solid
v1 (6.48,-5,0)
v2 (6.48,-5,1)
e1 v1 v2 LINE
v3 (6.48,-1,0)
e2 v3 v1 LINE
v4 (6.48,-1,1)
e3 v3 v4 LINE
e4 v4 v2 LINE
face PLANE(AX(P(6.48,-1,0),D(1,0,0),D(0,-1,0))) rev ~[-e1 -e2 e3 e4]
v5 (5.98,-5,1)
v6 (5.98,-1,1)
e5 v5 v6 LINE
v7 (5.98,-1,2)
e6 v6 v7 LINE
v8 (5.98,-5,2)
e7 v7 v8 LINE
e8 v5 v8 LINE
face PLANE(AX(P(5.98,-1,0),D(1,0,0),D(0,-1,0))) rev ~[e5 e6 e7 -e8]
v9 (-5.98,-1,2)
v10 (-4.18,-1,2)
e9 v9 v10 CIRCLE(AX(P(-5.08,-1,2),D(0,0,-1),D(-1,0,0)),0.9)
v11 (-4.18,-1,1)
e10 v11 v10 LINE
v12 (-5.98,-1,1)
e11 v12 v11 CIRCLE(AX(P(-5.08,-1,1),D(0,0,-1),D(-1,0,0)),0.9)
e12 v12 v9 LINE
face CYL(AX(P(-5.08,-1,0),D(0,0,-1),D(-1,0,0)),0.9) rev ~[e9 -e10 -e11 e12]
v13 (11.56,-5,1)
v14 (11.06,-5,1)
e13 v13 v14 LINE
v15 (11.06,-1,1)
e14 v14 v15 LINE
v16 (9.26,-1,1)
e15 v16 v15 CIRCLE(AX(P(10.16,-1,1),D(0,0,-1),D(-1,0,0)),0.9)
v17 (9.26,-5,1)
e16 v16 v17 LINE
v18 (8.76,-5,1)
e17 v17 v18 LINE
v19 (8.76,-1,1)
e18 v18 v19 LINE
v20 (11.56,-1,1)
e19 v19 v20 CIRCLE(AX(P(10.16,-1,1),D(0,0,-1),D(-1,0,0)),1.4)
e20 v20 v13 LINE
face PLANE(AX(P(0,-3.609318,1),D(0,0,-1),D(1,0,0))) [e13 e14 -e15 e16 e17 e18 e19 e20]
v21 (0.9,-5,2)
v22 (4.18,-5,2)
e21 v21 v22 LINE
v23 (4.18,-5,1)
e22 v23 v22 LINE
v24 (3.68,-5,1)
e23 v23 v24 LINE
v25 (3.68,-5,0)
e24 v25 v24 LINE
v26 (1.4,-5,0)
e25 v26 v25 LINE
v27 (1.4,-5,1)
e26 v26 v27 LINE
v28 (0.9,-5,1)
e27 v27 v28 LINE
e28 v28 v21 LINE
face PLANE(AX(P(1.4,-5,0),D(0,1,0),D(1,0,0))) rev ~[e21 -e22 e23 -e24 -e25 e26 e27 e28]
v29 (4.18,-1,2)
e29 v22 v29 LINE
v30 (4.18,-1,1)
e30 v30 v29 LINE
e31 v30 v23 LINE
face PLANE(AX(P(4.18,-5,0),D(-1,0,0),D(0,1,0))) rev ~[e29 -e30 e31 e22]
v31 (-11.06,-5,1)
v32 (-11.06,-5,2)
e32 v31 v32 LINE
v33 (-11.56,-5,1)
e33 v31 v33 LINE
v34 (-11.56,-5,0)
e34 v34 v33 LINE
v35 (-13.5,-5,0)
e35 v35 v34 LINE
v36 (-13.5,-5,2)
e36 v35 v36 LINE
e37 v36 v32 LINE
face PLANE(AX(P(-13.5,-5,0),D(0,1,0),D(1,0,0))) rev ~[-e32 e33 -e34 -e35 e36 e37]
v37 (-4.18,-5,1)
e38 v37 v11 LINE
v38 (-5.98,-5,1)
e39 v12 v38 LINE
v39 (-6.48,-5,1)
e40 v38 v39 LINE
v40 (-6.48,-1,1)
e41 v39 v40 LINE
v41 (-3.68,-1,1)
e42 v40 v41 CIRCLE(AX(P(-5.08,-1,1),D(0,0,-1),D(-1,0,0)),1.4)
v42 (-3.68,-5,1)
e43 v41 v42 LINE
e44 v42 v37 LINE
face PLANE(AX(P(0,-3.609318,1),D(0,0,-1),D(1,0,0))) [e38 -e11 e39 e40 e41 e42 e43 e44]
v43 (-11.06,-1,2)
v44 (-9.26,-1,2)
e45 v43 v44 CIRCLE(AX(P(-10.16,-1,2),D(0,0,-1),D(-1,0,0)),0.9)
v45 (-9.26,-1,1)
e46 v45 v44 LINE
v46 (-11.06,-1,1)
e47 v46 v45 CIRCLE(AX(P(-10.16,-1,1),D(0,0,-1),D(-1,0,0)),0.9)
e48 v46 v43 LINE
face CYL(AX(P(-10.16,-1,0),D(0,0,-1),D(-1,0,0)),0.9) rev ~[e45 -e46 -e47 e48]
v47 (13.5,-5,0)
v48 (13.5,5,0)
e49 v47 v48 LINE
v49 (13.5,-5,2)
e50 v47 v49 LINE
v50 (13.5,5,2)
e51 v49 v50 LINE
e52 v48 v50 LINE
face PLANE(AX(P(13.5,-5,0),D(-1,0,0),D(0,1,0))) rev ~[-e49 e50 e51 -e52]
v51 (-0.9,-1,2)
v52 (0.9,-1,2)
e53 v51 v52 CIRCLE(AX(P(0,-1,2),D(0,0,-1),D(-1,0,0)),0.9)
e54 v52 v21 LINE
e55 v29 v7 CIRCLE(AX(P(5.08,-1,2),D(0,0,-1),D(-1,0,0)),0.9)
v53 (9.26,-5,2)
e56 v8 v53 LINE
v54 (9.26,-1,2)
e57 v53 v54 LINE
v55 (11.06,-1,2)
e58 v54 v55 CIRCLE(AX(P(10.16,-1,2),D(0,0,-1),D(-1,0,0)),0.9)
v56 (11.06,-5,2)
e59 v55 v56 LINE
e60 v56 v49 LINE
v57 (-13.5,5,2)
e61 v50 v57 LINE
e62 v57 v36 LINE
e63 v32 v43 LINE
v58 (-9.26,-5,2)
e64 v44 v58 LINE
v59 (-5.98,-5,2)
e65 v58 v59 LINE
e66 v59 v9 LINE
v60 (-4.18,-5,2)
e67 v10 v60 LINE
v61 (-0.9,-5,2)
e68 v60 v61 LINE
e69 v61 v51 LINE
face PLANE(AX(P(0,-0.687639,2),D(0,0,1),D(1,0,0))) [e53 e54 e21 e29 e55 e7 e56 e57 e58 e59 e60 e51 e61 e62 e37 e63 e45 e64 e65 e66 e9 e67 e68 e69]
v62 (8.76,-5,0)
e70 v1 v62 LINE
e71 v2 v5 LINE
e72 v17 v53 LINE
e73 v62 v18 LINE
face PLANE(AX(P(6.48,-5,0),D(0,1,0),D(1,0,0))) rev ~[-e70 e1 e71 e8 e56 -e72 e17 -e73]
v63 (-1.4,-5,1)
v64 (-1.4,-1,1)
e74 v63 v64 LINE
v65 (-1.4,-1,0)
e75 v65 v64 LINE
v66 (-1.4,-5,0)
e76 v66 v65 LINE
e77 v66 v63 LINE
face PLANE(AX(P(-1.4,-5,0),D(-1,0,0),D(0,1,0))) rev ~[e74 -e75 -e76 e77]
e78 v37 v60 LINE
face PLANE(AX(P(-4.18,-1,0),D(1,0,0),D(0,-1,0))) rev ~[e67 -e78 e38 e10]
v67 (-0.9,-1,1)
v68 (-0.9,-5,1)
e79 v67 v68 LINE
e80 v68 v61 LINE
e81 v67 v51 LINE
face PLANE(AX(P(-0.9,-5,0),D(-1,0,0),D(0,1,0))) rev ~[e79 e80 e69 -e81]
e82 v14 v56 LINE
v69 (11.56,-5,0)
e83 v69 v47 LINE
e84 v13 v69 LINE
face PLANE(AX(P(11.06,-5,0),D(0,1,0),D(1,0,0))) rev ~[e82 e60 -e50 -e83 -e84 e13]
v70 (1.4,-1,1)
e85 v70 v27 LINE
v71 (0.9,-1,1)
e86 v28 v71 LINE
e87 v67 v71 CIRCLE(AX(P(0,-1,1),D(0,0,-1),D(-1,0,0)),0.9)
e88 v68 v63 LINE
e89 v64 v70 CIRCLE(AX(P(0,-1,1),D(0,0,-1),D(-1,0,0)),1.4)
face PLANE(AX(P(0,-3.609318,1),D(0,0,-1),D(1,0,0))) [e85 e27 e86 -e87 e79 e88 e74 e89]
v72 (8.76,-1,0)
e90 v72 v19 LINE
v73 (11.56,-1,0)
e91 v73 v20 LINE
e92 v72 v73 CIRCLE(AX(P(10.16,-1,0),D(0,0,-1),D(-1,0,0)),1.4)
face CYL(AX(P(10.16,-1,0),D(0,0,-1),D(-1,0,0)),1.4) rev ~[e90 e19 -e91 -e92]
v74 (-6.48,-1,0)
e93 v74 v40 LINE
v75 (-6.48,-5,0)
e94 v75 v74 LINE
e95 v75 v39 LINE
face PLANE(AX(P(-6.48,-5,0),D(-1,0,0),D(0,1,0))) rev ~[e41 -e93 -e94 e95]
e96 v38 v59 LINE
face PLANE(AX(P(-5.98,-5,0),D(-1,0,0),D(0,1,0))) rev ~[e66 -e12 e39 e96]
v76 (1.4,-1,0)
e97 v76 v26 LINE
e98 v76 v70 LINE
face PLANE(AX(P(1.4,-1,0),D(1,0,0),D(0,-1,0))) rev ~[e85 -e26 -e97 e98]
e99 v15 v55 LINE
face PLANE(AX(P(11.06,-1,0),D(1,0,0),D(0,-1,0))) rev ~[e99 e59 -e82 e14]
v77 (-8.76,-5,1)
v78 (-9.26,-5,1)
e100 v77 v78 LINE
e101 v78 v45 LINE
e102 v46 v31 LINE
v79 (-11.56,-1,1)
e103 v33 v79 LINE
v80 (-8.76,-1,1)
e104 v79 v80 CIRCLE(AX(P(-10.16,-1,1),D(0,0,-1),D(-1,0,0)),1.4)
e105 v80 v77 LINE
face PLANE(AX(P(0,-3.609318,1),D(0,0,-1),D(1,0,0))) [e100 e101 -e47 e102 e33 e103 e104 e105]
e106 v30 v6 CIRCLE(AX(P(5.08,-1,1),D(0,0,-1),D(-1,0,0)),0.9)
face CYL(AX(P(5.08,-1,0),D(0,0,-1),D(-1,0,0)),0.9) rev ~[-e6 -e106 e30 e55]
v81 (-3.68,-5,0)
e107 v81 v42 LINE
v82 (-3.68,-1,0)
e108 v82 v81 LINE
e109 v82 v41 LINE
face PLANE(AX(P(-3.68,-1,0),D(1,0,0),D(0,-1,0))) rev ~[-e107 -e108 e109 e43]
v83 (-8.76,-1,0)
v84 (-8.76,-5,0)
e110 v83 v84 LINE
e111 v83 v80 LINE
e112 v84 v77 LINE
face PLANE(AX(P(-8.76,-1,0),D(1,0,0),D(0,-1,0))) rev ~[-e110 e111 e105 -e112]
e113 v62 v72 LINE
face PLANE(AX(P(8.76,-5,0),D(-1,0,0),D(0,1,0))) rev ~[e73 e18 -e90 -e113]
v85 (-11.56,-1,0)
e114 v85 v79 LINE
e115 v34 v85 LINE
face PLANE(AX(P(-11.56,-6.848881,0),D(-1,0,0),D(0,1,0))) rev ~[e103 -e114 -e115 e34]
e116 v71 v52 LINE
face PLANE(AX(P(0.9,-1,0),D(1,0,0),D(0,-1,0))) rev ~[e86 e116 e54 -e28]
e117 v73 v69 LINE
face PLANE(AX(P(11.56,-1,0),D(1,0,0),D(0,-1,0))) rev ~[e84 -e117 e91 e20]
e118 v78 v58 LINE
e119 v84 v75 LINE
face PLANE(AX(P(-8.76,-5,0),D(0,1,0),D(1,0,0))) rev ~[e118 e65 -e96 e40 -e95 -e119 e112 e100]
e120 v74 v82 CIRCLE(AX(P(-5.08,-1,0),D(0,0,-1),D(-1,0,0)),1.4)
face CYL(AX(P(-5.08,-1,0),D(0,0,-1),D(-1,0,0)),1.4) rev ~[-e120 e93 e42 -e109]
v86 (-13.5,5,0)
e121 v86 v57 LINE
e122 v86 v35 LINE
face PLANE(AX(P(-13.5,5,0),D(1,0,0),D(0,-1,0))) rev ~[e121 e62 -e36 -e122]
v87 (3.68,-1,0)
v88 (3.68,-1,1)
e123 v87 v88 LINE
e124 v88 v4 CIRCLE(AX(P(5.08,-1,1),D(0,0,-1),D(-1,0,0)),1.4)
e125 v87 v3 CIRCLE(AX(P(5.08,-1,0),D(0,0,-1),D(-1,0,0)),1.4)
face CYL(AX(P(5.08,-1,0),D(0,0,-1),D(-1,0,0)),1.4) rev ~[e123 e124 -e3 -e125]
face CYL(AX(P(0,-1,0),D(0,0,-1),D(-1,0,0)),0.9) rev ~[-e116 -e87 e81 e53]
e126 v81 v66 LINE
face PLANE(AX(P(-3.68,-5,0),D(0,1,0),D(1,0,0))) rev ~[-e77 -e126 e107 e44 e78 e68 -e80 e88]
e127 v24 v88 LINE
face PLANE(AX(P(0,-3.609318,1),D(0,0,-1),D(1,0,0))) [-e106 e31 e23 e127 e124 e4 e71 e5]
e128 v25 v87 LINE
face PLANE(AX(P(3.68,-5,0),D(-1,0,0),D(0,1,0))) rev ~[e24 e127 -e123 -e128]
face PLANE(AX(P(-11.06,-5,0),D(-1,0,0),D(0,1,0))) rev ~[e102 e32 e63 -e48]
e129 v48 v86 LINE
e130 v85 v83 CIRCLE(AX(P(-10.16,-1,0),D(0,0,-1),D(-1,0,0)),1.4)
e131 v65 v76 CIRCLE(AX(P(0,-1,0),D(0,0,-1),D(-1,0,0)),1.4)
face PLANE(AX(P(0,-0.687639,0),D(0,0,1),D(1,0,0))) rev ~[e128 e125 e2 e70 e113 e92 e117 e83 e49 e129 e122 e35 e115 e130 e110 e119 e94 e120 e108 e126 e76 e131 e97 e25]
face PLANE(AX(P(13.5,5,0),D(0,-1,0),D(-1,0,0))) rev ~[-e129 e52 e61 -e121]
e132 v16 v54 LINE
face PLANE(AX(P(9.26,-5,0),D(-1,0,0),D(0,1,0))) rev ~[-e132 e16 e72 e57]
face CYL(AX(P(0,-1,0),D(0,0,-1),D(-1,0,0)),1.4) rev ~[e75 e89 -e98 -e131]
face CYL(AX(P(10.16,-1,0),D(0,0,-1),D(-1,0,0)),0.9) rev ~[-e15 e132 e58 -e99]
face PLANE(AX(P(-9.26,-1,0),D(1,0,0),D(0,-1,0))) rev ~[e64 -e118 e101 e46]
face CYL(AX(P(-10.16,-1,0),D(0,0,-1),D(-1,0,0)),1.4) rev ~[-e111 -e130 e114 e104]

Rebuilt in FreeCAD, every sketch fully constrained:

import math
import FreeCAD as App
import Part
import Sketcher

doc = App.newDocument("Part")
body = doc.addObject("PartDesign::Body", "Body")

sketch1 = body.newObject("Sketcher::SketchObject", "Sketch")
sketch1.AttachmentSupport = (doc.getObject("XY_Plane"), [""])
sketch1.MapMode = "FlatFace"
sketch1.addGeometry(Part.LineSegment(App.Vector(13.5, 5, 0), App.Vector(-13.5, 5, 0)), False)
sketch1.addGeometry(Part.LineSegment(App.Vector(-13.5, 5, 0), App.Vector(-13.5, -5, 0)), False)
sketch1.addGeometry(Part.LineSegment(App.Vector(-13.5, -5, 0), App.Vector(-11.1, -5, 0)), False)
sketch1.addGeometry(Part.LineSegment(App.Vector(-11.1, -5, 0), App.Vector(-11.1, -1, 0)), False)
sketch1.addGeometry(Part.ArcOfCircle(Part.Circle(App.Vector(-10.2, -1, 0), App.Vector(0, 0, 1), 0.9), math.radians(0), math.radians(180)), False)
sketch1.addGeometry(Part.LineSegment(App.Vector(-9.3, -1, 0), App.Vector(-9.3, -5, 0)), False)
sketch1.addGeometry(Part.LineSegment(App.Vector(-9.3, -5, 0), App.Vector(-6, -5, 0)), False)
sketch1.addGeometry(Part.LineSegment(App.Vector(-6, -5, 0), App.Vector(-6, -1, 0)), False)
sketch1.addGeometry(Part.ArcOfCircle(Part.Circle(App.Vector(-5.1, -1, 0), App.Vector(0, 0, 1), 0.9), math.radians(0), math.radians(180)), False)
sketch1.addGeometry(Part.LineSegment(App.Vector(-4.2, -1, 0), App.Vector(-4.2, -5, 0)), False)
sketch1.addGeometry(Part.LineSegment(App.Vector(-4.2, -5, 0), App.Vector(-0.9, -5, 0)), False)
sketch1.addGeometry(Part.LineSegment(App.Vector(-0.9, -5, 0), App.Vector(-0.9, -1, 0)), False)
sketch1.addGeometry(Part.ArcOfCircle(Part.Circle(App.Vector(0, -1, 0), App.Vector(0, 0, 1), 0.9), math.radians(0), math.radians(180)), False)
sketch1.addGeometry(Part.LineSegment(App.Vector(0.9, -1, 0), App.Vector(0.9, -5, 0)), False)
sketch1.addGeometry(Part.LineSegment(App.Vector(0.9, -5, 0), App.Vector(4.2, -5, 0)), False)
sketch1.addGeometry(Part.LineSegment(App.Vector(4.2, -5, 0), App.Vector(4.2, -1, 0)), False)
sketch1.addGeometry(Part.ArcOfCircle(Part.Circle(App.Vector(5.1, -1, 0), App.Vector(0, 0, 1), 0.9), math.radians(0), math.radians(180)), False)
sketch1.addGeometry(Part.LineSegment(App.Vector(6, -1, 0), App.Vector(6, -5, 0)), False)
sketch1.addGeometry(Part.LineSegment(App.Vector(6, -5, 0), App.Vector(9.3, -5, 0)), False)
sketch1.addGeometry(Part.LineSegment(App.Vector(9.3, -5, 0), App.Vector(9.3, -1, 0)), False)
sketch1.addGeometry(Part.ArcOfCircle(Part.Circle(App.Vector(10.2, -1, 0), App.Vector(0, 0, 1), 0.9), math.radians(0), math.radians(180)), False)
sketch1.addGeometry(Part.LineSegment(App.Vector(11.1, -1, 0), App.Vector(11.1, -5, 0)), False)
sketch1.addGeometry(Part.LineSegment(App.Vector(11.1, -5, 0), App.Vector(13.5, -5, 0)), False)
sketch1.addGeometry(Part.LineSegment(App.Vector(13.5, -5, 0), App.Vector(13.5, 5, 0)), False)
sketch1.addConstraint(Sketcher.Constraint("Coincident", 0, 2, 1, 1))
sketch1.addConstraint(Sketcher.Constraint("Coincident", 1, 2, 2, 1))
sketch1.addConstraint(Sketcher.Constraint("Coincident", 2, 2, 3, 1))
sketch1.addConstraint(Sketcher.Constraint("Tangent", 3, 2, 4, 2))
sketch1.addConstraint(Sketcher.Constraint("Tangent", 4, 1, 5, 1))
sketch1.addConstraint(Sketcher.Constraint("Coincident", 5, 2, 6, 1))
sketch1.addConstraint(Sketcher.Constraint("Coincident", 6, 2, 7, 1))
sketch1.addConstraint(Sketcher.Constraint("Tangent", 7, 2, 8, 2))
sketch1.addConstraint(Sketcher.Constraint("Tangent", 8, 1, 9, 1))
sketch1.addConstraint(Sketcher.Constraint("Coincident", 9, 2, 10, 1))
sketch1.addConstraint(Sketcher.Constraint("Coincident", 10, 2, 11, 1))
sketch1.addConstraint(Sketcher.Constraint("Tangent", 11, 2, 12, 2))
sketch1.addConstraint(Sketcher.Constraint("Tangent", 12, 1, 13, 1))
sketch1.addConstraint(Sketcher.Constraint("Coincident", 13, 2, 14, 1))
sketch1.addConstraint(Sketcher.Constraint("Coincident", 14, 2, 15, 1))
sketch1.addConstraint(Sketcher.Constraint("Tangent", 15, 2, 16, 2))
sketch1.addConstraint(Sketcher.Constraint("Tangent", 16, 1, 17, 1))
sketch1.addConstraint(Sketcher.Constraint("Coincident", 17, 2, 18, 1))
sketch1.addConstraint(Sketcher.Constraint("Coincident", 18, 2, 19, 1))
sketch1.addConstraint(Sketcher.Constraint("Tangent", 19, 2, 20, 2))
sketch1.addConstraint(Sketcher.Constraint("Tangent", 20, 1, 21, 1))
sketch1.addConstraint(Sketcher.Constraint("Coincident", 21, 2, 22, 1))
sketch1.addConstraint(Sketcher.Constraint("Coincident", 22, 2, 23, 1))
sketch1.addConstraint(Sketcher.Constraint("Coincident", 23, 2, 0, 1))
sketch1.addConstraint(Sketcher.Constraint("Horizontal", 0))
sketch1.addConstraint(Sketcher.Constraint("Vertical", 1))
sketch1.addConstraint(Sketcher.Constraint("Horizontal", 2))
sketch1.addConstraint(Sketcher.Constraint("Vertical", 3))
sketch1.addConstraint(Sketcher.Constraint("Vertical", 5))
sketch1.addConstraint(Sketcher.Constraint("Horizontal", 6))
sketch1.addConstraint(Sketcher.Constraint("Vertical", 7))
sketch1.addConstraint(Sketcher.Constraint("Vertical", 9))
sketch1.addConstraint(Sketcher.Constraint("Horizontal", 10))
sketch1.addConstraint(Sketcher.Constraint("Vertical", 11))
sketch1.addConstraint(Sketcher.Constraint("Vertical", 13))
sketch1.addConstraint(Sketcher.Constraint("Horizontal", 14))
sketch1.addConstraint(Sketcher.Constraint("Vertical", 15))
sketch1.addConstraint(Sketcher.Constraint("Vertical", 17))
sketch1.addConstraint(Sketcher.Constraint("Horizontal", 18))
sketch1.addConstraint(Sketcher.Constraint("Vertical", 19))
sketch1.addConstraint(Sketcher.Constraint("Vertical", 21))
sketch1.addConstraint(Sketcher.Constraint("Horizontal", 22))
sketch1.addConstraint(Sketcher.Constraint("Vertical", 23))
sketch1.addConstraint(Sketcher.Constraint("Equal", 4, 8))
sketch1.addConstraint(Sketcher.Constraint("Equal", 8, 12))
sketch1.addConstraint(Sketcher.Constraint("Equal", 12, 16))
sketch1.addConstraint(Sketcher.Constraint("Equal", 16, 20))
sketch1.addConstraint(Sketcher.Constraint("Symmetric", 0, 2, 22, 2, -1, 1))
sketch1.addConstraint(Sketcher.Constraint("Symmetric", 8, 3, 16, 3, -2))
sketch1.addConstraint(Sketcher.Constraint("Symmetric", 4, 3, 20, 3, -2))
sketch1.addConstraint(Sketcher.Constraint("Symmetric", 10, 2, 13, 2, -2))
sketch1.addConstraint(Sketcher.Constraint("Horizontal", 4, 3, 8, 3))
sketch1.addConstraint(Sketcher.Constraint("Horizontal", 8, 3, 12, 3))
sketch1.addConstraint(Sketcher.Constraint("Horizontal", 2, 2, 5, 2))
sketch1.addConstraint(Sketcher.Constraint("Horizontal", 6, 2, 9, 2))
sketch1.addConstraint(Sketcher.Constraint("Horizontal", 14, 2, 17, 2))
sketch1.addConstraint(Sketcher.Constraint("Horizontal", 18, 2, 21, 2))
sketch1.addConstraint(Sketcher.Constraint("Equal", 6, 10))
sketch1.addConstraint(Sketcher.Constraint("Radius", 4, 0.9))
sketch1.addConstraint(Sketcher.Constraint("DistanceX", 0, 2, 0, 1, 27.0))
sketch1.addConstraint(Sketcher.Constraint("DistanceY", 1, 2, 1, 1, 10.0))
sketch1.addConstraint(Sketcher.Constraint("DistanceY", 3, 1, 3, 2, 4.0))
sketch1.addConstraint(Sketcher.Constraint("DistanceX", 2, 1, 2, 2, 2.44))
pad1 = body.newObject("PartDesign::Pad", "Pad")
pad1.Profile = sketch1
pad1.Length = 2

sketch2 = body.newObject("Sketcher::SketchObject", "Sketch001")
sketch2.AttachmentSupport = (doc.getObject("XY_Plane"), [""])
sketch2.MapMode = "FlatFace"
sketch2.addGeometry(Part.LineSegment(App.Vector(-11.6, -6.8, 0), App.Vector(-11.6, -1, 0)), False)
sketch2.addGeometry(Part.ArcOfCircle(Part.Circle(App.Vector(-10.2, -1, 0), App.Vector(0, 0, 1), 1.4), math.radians(0), math.radians(180)), False)
sketch2.addGeometry(Part.LineSegment(App.Vector(-8.8, -1, 0), App.Vector(-8.8, -5, 0)), False)
sketch2.addGeometry(Part.LineSegment(App.Vector(-8.8, -5, 0), App.Vector(-6.5, -5, 0)), False)
sketch2.addGeometry(Part.LineSegment(App.Vector(-6.5, -5, 0), App.Vector(-6.5, -1, 0)), False)
sketch2.addGeometry(Part.ArcOfCircle(Part.Circle(App.Vector(-5.1, -1, 0), App.Vector(0, 0, 1), 1.4), math.radians(0), math.radians(180)), False)
sketch2.addGeometry(Part.LineSegment(App.Vector(-3.7, -1, 0), App.Vector(-3.7, -5, 0)), False)
sketch2.addGeometry(Part.LineSegment(App.Vector(-3.7, -5, 0), App.Vector(-1.4, -5, 0)), False)
sketch2.addGeometry(Part.LineSegment(App.Vector(-1.4, -5, 0), App.Vector(-1.4, -1, 0)), False)
sketch2.addGeometry(Part.ArcOfCircle(Part.Circle(App.Vector(0, -1, 0), App.Vector(0, 0, 1), 1.4), math.radians(0), math.radians(180)), False)
sketch2.addGeometry(Part.LineSegment(App.Vector(1.4, -1, 0), App.Vector(1.4, -5, 0)), False)
sketch2.addGeometry(Part.LineSegment(App.Vector(1.4, -5, 0), App.Vector(3.7, -5, 0)), False)
sketch2.addGeometry(Part.LineSegment(App.Vector(3.7, -5, 0), App.Vector(3.7, -1, 0)), False)
sketch2.addGeometry(Part.ArcOfCircle(Part.Circle(App.Vector(5.1, -1, 0), App.Vector(0, 0, 1), 1.4), math.radians(0), math.radians(180)), False)
sketch2.addGeometry(Part.LineSegment(App.Vector(6.5, -1, 0), App.Vector(6.5, -5, 0)), False)
sketch2.addGeometry(Part.LineSegment(App.Vector(6.5, -5, 0), App.Vector(8.8, -5, 0)), False)
sketch2.addGeometry(Part.LineSegment(App.Vector(8.8, -5, 0), App.Vector(8.8, -1, 0)), False)
sketch2.addGeometry(Part.ArcOfCircle(Part.Circle(App.Vector(10.2, -1, 0), App.Vector(0, 0, 1), 1.4), math.radians(0), math.radians(180)), False)
sketch2.addGeometry(Part.LineSegment(App.Vector(11.6, -1, 0), App.Vector(11.6, -6.8, 0)), False)
sketch2.addGeometry(Part.LineSegment(App.Vector(11.6, -6.8, 0), App.Vector(-11.6, -6.8, 0)), False)
sketch2.addConstraint(Sketcher.Constraint("Tangent", 0, 2, 1, 2))
sketch2.addConstraint(Sketcher.Constraint("Tangent", 1, 1, 2, 1))
sketch2.addConstraint(Sketcher.Constraint("Coincident", 2, 2, 3, 1))
sketch2.addConstraint(Sketcher.Constraint("Coincident", 3, 2, 4, 1))
sketch2.addConstraint(Sketcher.Constraint("Tangent", 4, 2, 5, 2))
sketch2.addConstraint(Sketcher.Constraint("Tangent", 5, 1, 6, 1))
sketch2.addConstraint(Sketcher.Constraint("Coincident", 6, 2, 7, 1))
sketch2.addConstraint(Sketcher.Constraint("Coincident", 7, 2, 8, 1))
sketch2.addConstraint(Sketcher.Constraint("Tangent", 8, 2, 9, 2))
sketch2.addConstraint(Sketcher.Constraint("Tangent", 9, 1, 10, 1))
sketch2.addConstraint(Sketcher.Constraint("Coincident", 10, 2, 11, 1))
sketch2.addConstraint(Sketcher.Constraint("Coincident", 11, 2, 12, 1))
sketch2.addConstraint(Sketcher.Constraint("Tangent", 12, 2, 13, 2))
sketch2.addConstraint(Sketcher.Constraint("Tangent", 13, 1, 14, 1))
sketch2.addConstraint(Sketcher.Constraint("Coincident", 14, 2, 15, 1))
sketch2.addConstraint(Sketcher.Constraint("Coincident", 15, 2, 16, 1))
sketch2.addConstraint(Sketcher.Constraint("Tangent", 16, 2, 17, 2))
sketch2.addConstraint(Sketcher.Constraint("Tangent", 17, 1, 18, 1))
sketch2.addConstraint(Sketcher.Constraint("Coincident", 18, 2, 19, 1))
sketch2.addConstraint(Sketcher.Constraint("Coincident", 19, 2, 0, 1))
sketch2.addConstraint(Sketcher.Constraint("Vertical", 0))
sketch2.addConstraint(Sketcher.Constraint("Vertical", 2))
sketch2.addConstraint(Sketcher.Constraint("Horizontal", 3))
sketch2.addConstraint(Sketcher.Constraint("Vertical", 4))
sketch2.addConstraint(Sketcher.Constraint("Vertical", 6))
sketch2.addConstraint(Sketcher.Constraint("Horizontal", 7))
sketch2.addConstraint(Sketcher.Constraint("Vertical", 8))
sketch2.addConstraint(Sketcher.Constraint("Vertical", 10))
sketch2.addConstraint(Sketcher.Constraint("Horizontal", 11))
sketch2.addConstraint(Sketcher.Constraint("Vertical", 12))
sketch2.addConstraint(Sketcher.Constraint("Vertical", 14))
sketch2.addConstraint(Sketcher.Constraint("Horizontal", 15))
sketch2.addConstraint(Sketcher.Constraint("Vertical", 16))
sketch2.addConstraint(Sketcher.Constraint("Vertical", 18))
sketch2.addConstraint(Sketcher.Constraint("Horizontal", 19))
sketch2.addConstraint(Sketcher.Constraint("Equal", 1, 5))
sketch2.addConstraint(Sketcher.Constraint("Equal", 5, 9))
sketch2.addConstraint(Sketcher.Constraint("Equal", 9, 13))
sketch2.addConstraint(Sketcher.Constraint("Equal", 13, 17))
sketch2.addConstraint(Sketcher.Constraint("Symmetric", 5, 3, 13, 3, -2))
sketch2.addConstraint(Sketcher.Constraint("Symmetric", 1, 3, 17, 3, -2))
sketch2.addConstraint(Sketcher.Constraint("Symmetric", 7, 2, 10, 2, -2))
sketch2.addConstraint(Sketcher.Constraint("Horizontal", 1, 3, 5, 3))
sketch2.addConstraint(Sketcher.Constraint("Horizontal", 5, 3, 9, 3))
sketch2.addConstraint(Sketcher.Constraint("Horizontal", 3, 2, 6, 2))
sketch2.addConstraint(Sketcher.Constraint("Horizontal", 11, 2, 14, 2))
sketch2.addConstraint(Sketcher.Constraint("Equal", 3, 7))
sketch2.addConstraint(Sketcher.Constraint("Radius", 1, 1.4))
sketch2.addConstraint(Sketcher.Constraint("DistanceY", 2, 2, 2, 1, 4.0))
sketch2.addConstraint(Sketcher.Constraint("DistanceY", 1, 3, -1, 1, 1.0))
sketch2.addConstraint(Sketcher.Constraint("DistanceX", 3, 1, 3, 2, 2.28))
sketch2.addConstraint(Sketcher.Constraint("DistanceY", 0, 1, 0, 2, 5.848881))
pocket1 = body.newObject("PartDesign::Pocket", "Pocket")
pocket1.Profile = sketch2
pocket1.Length = 1
pocket1.Reversed = True

doc.recompute()
